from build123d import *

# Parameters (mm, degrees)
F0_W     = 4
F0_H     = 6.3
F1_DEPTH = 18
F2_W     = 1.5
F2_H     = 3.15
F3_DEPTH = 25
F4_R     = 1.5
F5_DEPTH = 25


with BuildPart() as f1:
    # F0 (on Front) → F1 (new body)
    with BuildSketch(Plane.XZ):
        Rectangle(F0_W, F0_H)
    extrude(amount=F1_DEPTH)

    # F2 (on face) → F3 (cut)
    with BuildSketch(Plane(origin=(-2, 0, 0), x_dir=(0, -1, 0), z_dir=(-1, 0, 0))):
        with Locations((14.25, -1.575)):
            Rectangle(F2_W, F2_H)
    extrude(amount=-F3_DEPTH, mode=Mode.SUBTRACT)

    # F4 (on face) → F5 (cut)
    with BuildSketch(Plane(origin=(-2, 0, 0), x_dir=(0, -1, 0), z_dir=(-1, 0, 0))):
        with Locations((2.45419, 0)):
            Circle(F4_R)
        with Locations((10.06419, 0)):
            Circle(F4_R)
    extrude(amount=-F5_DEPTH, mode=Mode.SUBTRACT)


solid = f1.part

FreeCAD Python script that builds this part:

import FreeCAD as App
import Part
import Sketcher

V = App.Vector
Q = App.Units.Quantity


def add_polygon(sketch, points):
    """Adds a closed chain of lines whose ends are joined by coincident constraints."""
    first, n = sketch.GeometryCount, len(points)
    for a, b in zip(points, points[1:] + points[:1]):
        sketch.addGeometry(Part.LineSegment(App.Vector(*a, 0), App.Vector(*b, 0)), False)
    for i in range(n):
        sketch.addConstraint(Sketcher.Constraint("Coincident", first + i, 2, first + (i + 1) % n, 1))

doc = App.newDocument("Part")
body = doc.addObject("PartDesign::Body", "Body")

sketch1 = body.newObject("Sketcher::SketchObject", "Sketch")
sketch1.AttachmentSupport = (doc.getObject("XZ_Plane"), [""])
sketch1.MapMode = "FlatFace"
add_polygon(sketch1, [(-2, 3.1), (-2, -3.1), (2, -3.1), (2, 3.1)])
sketch1.addConstraint(Sketcher.Constraint("Vertical", 0))
sketch1.addConstraint(Sketcher.Constraint("Horizontal", 1))
sketch1.addConstraint(Sketcher.Constraint("Vertical", 2))
sketch1.addConstraint(Sketcher.Constraint("Horizontal", 3))
sketch1.addConstraint(Sketcher.Constraint("Symmetric", 0, 2, 2, 2, -1, 1))
sketch1.addConstraint(Sketcher.Constraint("DistanceX", 1, 1, 1, 2, Q("4 mm")))
sketch1.addConstraint(Sketcher.Constraint("DistanceY", 0, 2, 0, 1, Q("6.3 mm")))
pad1 = body.newObject("PartDesign::Pad", "Pad")
pad1.Profile = sketch1
pad1.Length = 18

sketch2 = body.newObject("Sketcher::SketchObject", "Sketch001")
sketch2.AttachmentSupport = (doc.getObject("YZ_Plane"), [""])
sketch2.MapMode = "FlatFace"
sketch2.AttachmentOffset = App.Placement(V(0, 0, -2), App.Rotation())
add_polygon(sketch2, [(-13.5, 0), (-13.5, -3.1), (-15, -3.1), (-15, 0)])
sketch2.addConstraint(Sketcher.Constraint("Vertical", 0))
sketch2.addConstraint(Sketcher.Constraint("Horizontal", 1))
sketch2.addConstraint(Sketcher.Constraint("Vertical", 2))
sketch2.addConstraint(Sketcher.Constraint("Horizontal", 3))
sketch2.addConstraint(Sketcher.Constraint("PointOnObject", 2, 2, -1))
sketch2.addConstraint(Sketcher.Constraint("DistanceX", 1, 2, 1, 1, Q("1.5 mm")))
sketch2.addConstraint(Sketcher.Constraint("DistanceX", 1, 2, -1, 1, Q("15 mm")))
sketch2.addConstraint(Sketcher.Constraint("DistanceY", 0, 2, 0, 1, Q("3.15 mm")))
pocket1 = body.newObject("PartDesign::Pocket", "Pocket")
pocket1.Profile = sketch2
pocket1.Length = 25
pocket1.Reversed = True

sketch3 = body.newObject("Sketcher::SketchObject", "Sketch002")
sketch3.AttachmentSupport = (doc.getObject("YZ_Plane"), [""])
sketch3.MapMode = "FlatFace"
sketch3.AttachmentOffset = App.Placement(V(0, 0, -2), App.Rotation())
sketch3.addGeometry(Part.Circle(V(-2.5, 0, 0), V(0, 0, 1), 1.5), False)
sketch3.addGeometry(Part.Circle(V(-10.1, 0, 0), V(0, 0, 1), 1.5), False)
sketch3.addConstraint(Sketcher.Constraint("Equal", 0, 1))
sketch3.addConstraint(Sketcher.Constraint("PointOnObject", 0, 3, -1))
sketch3.addConstraint(Sketcher.Constraint("PointOnObject", 1, 3, -1))
sketch3.addConstraint(Sketcher.Constraint("Diameter", 0, Q("3 mm")))
sketch3.addConstraint(Sketcher.Constraint("DistanceX", 1, 3, 0, 3, Q("7.61 mm")))
sketch3.addConstraint(Sketcher.Constraint("DistanceX", 0, 3, -1, 1, Q("2.45419 mm")))
pocket2 = body.newObject("PartDesign::Pocket", "Pocket001")
pocket2.Profile = sketch3
pocket2.Length = 25
pocket2.Reversed = True

doc.recompute()
